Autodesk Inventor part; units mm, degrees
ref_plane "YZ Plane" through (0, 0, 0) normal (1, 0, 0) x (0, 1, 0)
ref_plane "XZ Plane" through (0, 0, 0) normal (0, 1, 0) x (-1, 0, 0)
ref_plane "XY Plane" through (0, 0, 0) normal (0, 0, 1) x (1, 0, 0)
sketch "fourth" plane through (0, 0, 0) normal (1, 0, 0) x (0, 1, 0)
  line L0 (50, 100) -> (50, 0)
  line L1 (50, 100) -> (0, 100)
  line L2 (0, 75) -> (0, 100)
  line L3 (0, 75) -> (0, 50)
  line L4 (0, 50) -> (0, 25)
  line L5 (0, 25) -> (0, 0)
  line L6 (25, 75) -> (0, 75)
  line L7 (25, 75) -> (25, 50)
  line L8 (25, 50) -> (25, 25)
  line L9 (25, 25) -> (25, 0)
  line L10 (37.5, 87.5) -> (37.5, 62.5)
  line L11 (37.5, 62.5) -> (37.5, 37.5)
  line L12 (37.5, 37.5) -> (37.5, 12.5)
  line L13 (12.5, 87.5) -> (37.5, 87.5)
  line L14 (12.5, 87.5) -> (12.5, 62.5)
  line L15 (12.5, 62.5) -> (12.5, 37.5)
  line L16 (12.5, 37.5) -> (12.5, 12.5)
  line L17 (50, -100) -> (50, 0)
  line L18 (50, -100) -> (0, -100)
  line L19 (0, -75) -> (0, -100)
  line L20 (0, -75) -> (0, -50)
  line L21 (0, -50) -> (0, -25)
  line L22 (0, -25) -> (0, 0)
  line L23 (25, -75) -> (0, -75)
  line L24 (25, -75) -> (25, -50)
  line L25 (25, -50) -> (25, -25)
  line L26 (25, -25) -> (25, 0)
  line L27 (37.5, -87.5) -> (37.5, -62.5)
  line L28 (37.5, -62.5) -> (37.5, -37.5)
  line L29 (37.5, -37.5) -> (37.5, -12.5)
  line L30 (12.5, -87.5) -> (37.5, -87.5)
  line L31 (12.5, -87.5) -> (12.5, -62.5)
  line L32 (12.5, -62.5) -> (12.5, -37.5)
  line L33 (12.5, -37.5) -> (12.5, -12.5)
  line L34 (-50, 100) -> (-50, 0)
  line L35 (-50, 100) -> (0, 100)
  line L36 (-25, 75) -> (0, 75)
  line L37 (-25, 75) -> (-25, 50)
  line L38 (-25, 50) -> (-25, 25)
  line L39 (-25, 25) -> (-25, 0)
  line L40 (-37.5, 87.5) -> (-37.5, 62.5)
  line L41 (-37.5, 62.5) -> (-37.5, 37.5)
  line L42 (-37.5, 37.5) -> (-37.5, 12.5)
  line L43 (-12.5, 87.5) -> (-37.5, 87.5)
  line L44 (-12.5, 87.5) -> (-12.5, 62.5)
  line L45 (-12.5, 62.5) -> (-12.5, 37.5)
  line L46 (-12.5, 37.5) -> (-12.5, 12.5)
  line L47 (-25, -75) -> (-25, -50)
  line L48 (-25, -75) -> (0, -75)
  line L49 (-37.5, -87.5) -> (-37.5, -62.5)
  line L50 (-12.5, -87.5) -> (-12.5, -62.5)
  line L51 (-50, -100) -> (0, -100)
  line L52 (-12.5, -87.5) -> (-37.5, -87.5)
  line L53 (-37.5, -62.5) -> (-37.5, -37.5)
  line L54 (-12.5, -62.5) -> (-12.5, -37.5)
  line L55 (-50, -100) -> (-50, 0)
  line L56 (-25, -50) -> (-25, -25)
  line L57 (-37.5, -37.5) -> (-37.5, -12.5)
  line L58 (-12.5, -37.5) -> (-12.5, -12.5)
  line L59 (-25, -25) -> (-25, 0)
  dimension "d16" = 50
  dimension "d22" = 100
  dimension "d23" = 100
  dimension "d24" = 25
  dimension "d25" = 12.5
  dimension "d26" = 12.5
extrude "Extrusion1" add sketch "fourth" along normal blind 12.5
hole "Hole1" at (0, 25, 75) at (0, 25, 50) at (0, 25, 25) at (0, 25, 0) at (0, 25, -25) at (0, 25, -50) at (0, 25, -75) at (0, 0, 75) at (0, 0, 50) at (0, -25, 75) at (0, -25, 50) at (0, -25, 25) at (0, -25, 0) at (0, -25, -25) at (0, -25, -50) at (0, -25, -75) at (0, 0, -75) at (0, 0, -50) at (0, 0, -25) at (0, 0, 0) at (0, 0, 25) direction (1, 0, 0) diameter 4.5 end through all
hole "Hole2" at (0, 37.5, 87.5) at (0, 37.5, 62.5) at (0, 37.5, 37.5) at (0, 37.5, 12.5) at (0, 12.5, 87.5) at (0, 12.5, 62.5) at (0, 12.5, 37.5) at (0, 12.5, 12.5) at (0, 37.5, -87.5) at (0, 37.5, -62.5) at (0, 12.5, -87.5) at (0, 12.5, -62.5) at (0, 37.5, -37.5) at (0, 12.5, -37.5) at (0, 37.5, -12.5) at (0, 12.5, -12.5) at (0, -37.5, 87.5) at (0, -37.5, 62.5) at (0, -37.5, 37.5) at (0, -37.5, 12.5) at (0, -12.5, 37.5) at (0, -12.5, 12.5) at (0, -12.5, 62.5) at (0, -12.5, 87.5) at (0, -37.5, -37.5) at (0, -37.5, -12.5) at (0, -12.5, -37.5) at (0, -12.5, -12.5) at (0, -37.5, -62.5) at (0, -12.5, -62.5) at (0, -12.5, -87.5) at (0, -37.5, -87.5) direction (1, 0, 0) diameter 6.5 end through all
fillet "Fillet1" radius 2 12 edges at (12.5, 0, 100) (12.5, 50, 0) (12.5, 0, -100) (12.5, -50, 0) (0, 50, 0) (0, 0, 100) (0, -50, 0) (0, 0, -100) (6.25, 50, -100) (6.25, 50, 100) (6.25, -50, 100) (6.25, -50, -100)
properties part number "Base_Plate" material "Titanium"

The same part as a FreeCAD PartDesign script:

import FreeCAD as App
import Part
import Sketcher

V = App.Vector


def edges_at(feature, points):
    """Names of the edges that pass closest to the given points."""
    edges = feature.Shape.Edges
    near = lambda p: min(range(len(edges)), key=lambda i: edges[i].distToShape(Part.Vertex(*p))[0])
    return sorted({f"Edge{near(p) + 1}" for p in points})


def add_polygon(sketch, points):
    """Adds a closed chain of lines whose ends are joined by coincident constraints."""
    first, n = sketch.GeometryCount, len(points)
    for a, b in zip(points, points[1:] + points[:1]):
        sketch.addGeometry(Part.LineSegment(App.Vector(*a, 0), App.Vector(*b, 0)), False)
    for i in range(n):
        sketch.addConstraint(Sketcher.Constraint("Coincident", first + i, 2, first + (i + 1) % n, 1))

doc = App.newDocument("Part")
params = doc.addObject("Spreadsheet::Sheet", "Params")
for row, (alias, value) in enumerate([
    ("sketch1_width", "100 mm"),
    ("pad1_length", "12.5 mm"),
    ("sketch2_diameter", "4.5 mm"),
    ("hole_diameter", "4.5 mm"),
    ("sketch3_diameter", "6.5 mm"),
    ("hole2_diameter", "6.5 mm"),
    ("fillet_radius", "2 mm"),
], start=1):
    params.set(f"A{row}", alias)
    params.set(f"B{row}", "=" + value)
    params.setAlias(f"B{row}", alias)

body = doc.addObject("PartDesign::Body", "Body")

sketch1 = doc.addObject("Sketcher::SketchObject", "Sketch")
body.addObject(sketch1)
sketch1.AttachmentSupport = (doc.YZ_Plane, [""])
sketch1.MapMode = "FlatFace"
add_polygon(sketch1, [(50, 100), (-50, 100), (-50, -100), (50, -100)])
sketch1.addConstraint([
    Sketcher.Constraint("Horizontal", 0),
    Sketcher.Constraint("Vertical", 1),
    Sketcher.Constraint("Horizontal", 2),
    Sketcher.Constraint("Vertical", 3),
    Sketcher.Constraint("Symmetric", 0, 2, 2, 2, -1, 1),
    Sketcher.Constraint("DistanceX", 0, 2, 0, 1, 100.0),
    Sketcher.Constraint("DistanceY", -1, 1, 0, 2, 100.0),
])
sketch1.setExpression("Constraints[9]", "Params.sketch1_width")
pad1 = doc.addObject("PartDesign::Pad", "Pad")
body.addObject(pad1)
pad1.Profile = sketch1
pad1.setExpression("Length", "Params.pad1_length")

sketch2 = doc.addObject("Sketcher::SketchObject", "Sketch001")
body.addObject(sketch2)
sketch2.AttachmentSupport = (doc.YZ_Plane, [""])
sketch2.MapMode = "FlatFace"
sketch2.addGeometry([
    Part.Circle(V(25, 75, 0), V(0, 0, 1), 2.2),
    Part.Circle(V(25, 50, 0), V(0, 0, 1), 2.2),
    Part.Circle(V(25, 25, 0), V(0, 0, 1), 2.2),
    Part.Circle(V(25, 0, 0), V(0, 0, 1), 2.2),
    Part.Circle(V(25, -25, 0), V(0, 0, 1), 2.2),
    Part.Circle(V(25, -50, 0), V(0, 0, 1), 2.2),
    Part.Circle(V(25, -75, 0), V(0, 0, 1), 2.2),
    Part.Circle(V(0, 75, 0), V(0, 0, 1), 2.2),
    Part.Circle(V(0, 50, 0), V(0, 0, 1), 2.2),
    Part.Circle(V(-25, 75, 0), V(0, 0, 1), 2.2),
    Part.Circle(V(-25, 50, 0), V(0, 0, 1), 2.2),
    Part.Circle(V(-25, 25, 0), V(0, 0, 1), 2.2),
    Part.Circle(V(-25, 0, 0), V(0, 0, 1), 2.2),
    Part.Circle(V(-25, -25, 0), V(0, 0, 1), 2.2),
    Part.Circle(V(-25, -50, 0), V(0, 0, 1), 2.2),
    Part.Circle(V(-25, -75, 0), V(0, 0, 1), 2.2),
    Part.Circle(V(0, -75, 0), V(0, 0, 1), 2.2),
    Part.Circle(V(0, -50, 0), V(0, 0, 1), 2.2),
    Part.Circle(V(0, -25, 0), V(0, 0, 1), 2.2),
    Part.Circle(V(0, 0, 0), V(0, 0, 1), 2.2),
    Part.Circle(V(0, 25, 0), V(0, 0, 1), 2.2),
], False)
sketch2.addConstraint([
    Sketcher.Constraint("Coincident", 19, 3, -1, 1),
    Sketcher.Constraint("Equal", 0, 1),
    Sketcher.Constraint("Equal", 1, 2),
    Sketcher.Constraint("Equal", 2, 3),
    Sketcher.Constraint("Equal", 3, 4),
    Sketcher.Constraint("Equal", 4, 5),
    Sketcher.Constraint("Equal", 5, 6),
    Sketcher.Constraint("Equal", 6, 7),
    Sketcher.Constraint("Equal", 7, 8),
    Sketcher.Constraint("Equal", 8, 9),
    Sketcher.Constraint("Equal", 9, 10),
    Sketcher.Constraint("Equal", 10, 11),
    Sketcher.Constraint("Equal", 11, 12),
    Sketcher.Constraint("Equal", 12, 13),
    Sketcher.Constraint("Equal", 13, 14),
    Sketcher.Constraint("Equal", 14, 15),
    Sketcher.Constraint("Equal", 15, 16),
    Sketcher.Constraint("Equal", 16, 17),
    Sketcher.Constraint("Equal", 17, 18),
    Sketcher.Constraint("Equal", 18, 19),
    Sketcher.Constraint("Equal", 19, 20),
    Sketcher.Constraint("Symmetric", 6, 3, 9, 3, -1, 1),
    Sketcher.Constraint("Symmetric", 5, 3, 10, 3, -1, 1),
    Sketcher.Constraint("Symmetric", 4, 3, 11, 3, -1, 1),
    Sketcher.Constraint("Symmetric", 3, 3, 12, 3, -1, 1),
    Sketcher.Constraint("Symmetric", 2, 3, 13, 3, -1, 1),
    Sketcher.Constraint("Symmetric", 1, 3, 14, 3, -1, 1),
    Sketcher.Constraint("Symmetric", 0, 3, 15, 3, -1, 1),
    Sketcher.Constraint("Symmetric", 7, 3, 16, 3, -1, 1),
    Sketcher.Constraint("Symmetric", 8, 3, 17, 3, -1, 1),
    Sketcher.Constraint("Symmetric", 18, 3, 20, 3, -1, 1),
    Sketcher.Constraint("Symmetric", 0, 3, 9, 3, -2),
    Sketcher.Constraint("Symmetric", 1, 3, 10, 3, -2),
    Sketcher.Constraint("Symmetric", 2, 3, 11, 3, -2),
    Sketcher.Constraint("PointOnObject", 3, 3, -1),
    Sketcher.Constraint("PointOnObject", 7, 3, -2),
    Sketcher.Constraint("PointOnObject", 8, 3, -2),
    Sketcher.Constraint("PointOnObject", 18, 3, -2),
    Sketcher.Constraint("Horizontal", 0, 3, 7, 3),
    Sketcher.Constraint("Horizontal", 1, 3, 8, 3),
    Sketcher.Constraint("Horizontal", 13, 3, 18, 3),
    Sketcher.Constraint("Vertical", 0, 3, 1, 3),
    Sketcher.Constraint("Vertical", 1, 3, 2, 3),
    Sketcher.Constraint("Vertical", 2, 3, 3, 3),
    Sketcher.Constraint("Diameter", 0, 4.5),
    Sketcher.Constraint("DistanceX", -1, 1, 0, 3, 25.0),
    Sketcher.Constraint("DistanceY", -1, 1, 0, 3, 75.0),
    Sketcher.Constraint("DistanceY", -1, 1, 1, 3, 50.0),
    Sketcher.Constraint("DistanceY", -1, 1, 2, 3, 25.0),
])
sketch2.setExpression("Constraints[44]", "Params.sketch2_diameter")
doc.recompute()
hole = doc.addObject("PartDesign::Hole", "Hole")
body.addObject(hole)
hole.Profile = sketch2
hole.ThreadType = "None"
hole.setExpression("Diameter", "Params.hole_diameter")
hole.DepthType = "ThroughAll"
hole.Reversed = True

sketch3 = doc.addObject("Sketcher::SketchObject", "Sketch002")
body.addObject(sketch3)
sketch3.AttachmentSupport = (doc.YZ_Plane, [""])
sketch3.MapMode = "FlatFace"
sketch3.addGeometry([
    Part.Circle(V(37.5, 87.5, 0), V(0, 0, 1), 3.2),
    Part.Circle(V(37.5, 62.5, 0), V(0, 0, 1), 3.2),
    Part.Circle(V(37.5, 37.5, 0), V(0, 0, 1), 3.2),
    Part.Circle(V(37.5, 12.5, 0), V(0, 0, 1), 3.2),
    Part.Circle(V(12.5, 87.5, 0), V(0, 0, 1), 3.2),
    Part.Circle(V(12.5, 62.5, 0), V(0, 0, 1), 3.2),
    Part.Circle(V(12.5, 37.5, 0), V(0, 0, 1), 3.2),
    Part.Circle(V(12.5, 12.5, 0), V(0, 0, 1), 3.2),
    Part.Circle(V(37.5, -87.5, 0), V(0, 0, 1), 3.2),
    Part.Circle(V(37.5, -62.5, 0), V(0, 0, 1), 3.2),
    Part.Circle(V(12.5, -87.5, 0), V(0, 0, 1), 3.2),
    Part.Circle(V(12.5, -62.5, 0), V(0, 0, 1), 3.2),
    Part.Circle(V(37.5, -37.5, 0), V(0, 0, 1), 3.2),
    Part.Circle(V(12.5, -37.5, 0), V(0, 0, 1), 3.2),
    Part.Circle(V(37.5, -12.5, 0), V(0, 0, 1), 3.2),
    Part.Circle(V(12.5, -12.5, 0), V(0, 0, 1), 3.2),
    Part.Circle(V(-37.5, 87.5, 0), V(0, 0, 1), 3.2),
    Part.Circle(V(-37.5, 62.5, 0), V(0, 0, 1), 3.2),
    Part.Circle(V(-37.5, 37.5, 0), V(0, 0, 1), 3.2),
    Part.Circle(V(-37.5, 12.5, 0), V(0, 0, 1), 3.2),
    Part.Circle(V(-12.5, 37.5, 0), V(0, 0, 1), 3.2),
    Part.Circle(V(-12.5, 12.5, 0), V(0, 0, 1), 3.2),
    Part.Circle(V(-12.5, 62.5, 0), V(0, 0, 1), 3.2),
    Part.Circle(V(-12.5, 87.5, 0), V(0, 0, 1), 3.2),
    Part.Circle(V(-37.5, -37.5, 0), V(0, 0, 1), 3.2),
    Part.Circle(V(-37.5, -12.5, 0), V(0, 0, 1), 3.2),
    Part.Circle(V(-12.5, -37.5, 0), V(0, 0, 1), 3.2),
    Part.Circle(V(-12.5, -12.5, 0), V(0, 0, 1), 3.2),
    Part.Circle(V(-37.5, -62.5, 0), V(0, 0, 1), 3.2),
    Part.Circle(V(-12.5, -62.5, 0), V(0, 0, 1), 3.2),
    Part.Circle(V(-12.5, -87.5, 0), V(0, 0, 1), 3.2),
    Part.Circle(V(-37.5, -87.5, 0), V(0, 0, 1), 3.2),
], False)
sketch3.addConstraint([
    Sketcher.Constraint("Equal", 0, 1),
    Sketcher.Constraint("Equal", 1, 2),
    Sketcher.Constraint("Equal", 2, 3),
    Sketcher.Constraint("Equal", 3, 4),
    Sketcher.Constraint("Equal", 4, 5),
    Sketcher.Constraint("Equal", 5, 6),
    Sketcher.Constraint("Equal", 6, 7),
    Sketcher.Constraint("Equal", 7, 8),
    Sketcher.Constraint("Equal", 8, 9),
    Sketcher.Constraint("Equal", 9, 10),
    Sketcher.Constraint("Equal", 10, 11),
    Sketcher.Constraint("Equal", 11, 12),
    Sketcher.Constraint("Equal", 12, 13),
    Sketcher.Constraint("Equal", 13, 14),
    Sketcher.Constraint("Equal", 14, 15),
    Sketcher.Constraint("Equal", 15, 16),
    Sketcher.Constraint("Equal", 16, 17),
    Sketcher.Constraint("Equal", 17, 18),
    Sketcher.Constraint("Equal", 18, 19),
    Sketcher.Constraint("Equal", 19, 20),
    Sketcher.Constraint("Equal", 20, 21),
    Sketcher.Constraint("Equal", 21, 22),
    Sketcher.Constraint("Equal", 22, 23),
    Sketcher.Constraint("Equal", 23, 24),
    Sketcher.Constraint("Equal", 24, 25),
    Sketcher.Constraint("Equal", 25, 26),
    Sketcher.Constraint("Equal", 26, 27),
    Sketcher.Constraint("Equal", 27, 28),
    Sketcher.Constraint("Equal", 28, 29),
    Sketcher.Constraint("Equal", 29, 30),
    Sketcher.Constraint("Equal", 30, 31),
    Sketcher.Constraint("Symmetric", 8, 3, 16, 3, -1, 1),
    Sketcher.Constraint("Symmetric", 9, 3, 17, 3, -1, 1),
    Sketcher.Constraint("Symmetric", 12, 3, 18, 3, -1, 1),
    Sketcher.Constraint("Symmetric", 14, 3, 19, 3, -1, 1),
    Sketcher.Constraint("Symmetric", 13, 3, 20, 3, -1, 1),
    Sketcher.Constraint("Symmetric", 15, 3, 21, 3, -1, 1),
    Sketcher.Constraint("Symmetric", 11, 3, 22, 3, -1, 1),
    Sketcher.Constraint("Symmetric", 10, 3, 23, 3, -1, 1),
    Sketcher.Constraint("Symmetric", 2, 3, 24, 3, -1, 1),
    Sketcher.Constraint("Symmetric", 3, 3, 25, 3, -1, 1),
    Sketcher.Constraint("Symmetric", 6, 3, 26, 3, -1, 1),
    Sketcher.Constraint("Symmetric", 7, 3, 27, 3, -1, 1),
    Sketcher.Constraint("Symmetric", 1, 3, 28, 3, -1, 1),
    Sketcher.Constraint("Symmetric", 5, 3, 29, 3, -1, 1),
    Sketcher.Constraint("Symmetric", 4, 3, 30, 3, -1, 1),
    Sketcher.Constraint("Symmetric", 0, 3, 31, 3, -1, 1),
    Sketcher.Constraint("Symmetric", 0, 3, 16, 3, -2),
    Sketcher.Constraint("Symmetric", 1, 3, 17, 3, -2),
    Sketcher.Constraint("Symmetric", 2, 3, 18, 3, -2),
    Sketcher.Constraint("Symmetric", 3, 3, 19, 3, -2),
    Sketcher.Constraint("Symmetric", 6, 3, 20, 3, -2),
    Sketcher.Constraint("Symmetric", 7, 3, 21, 3, -2),
    Sketcher.Constraint("Symmetric", 5, 3, 22, 3, -2),
    Sketcher.Constraint("Symmetric", 4, 3, 23, 3, -2),
    Sketcher.Constraint("Horizontal", 0, 3, 4, 3),
    Sketcher.Constraint("Horizontal", 1, 3, 5, 3),
    Sketcher.Constraint("Horizontal", 2, 3, 6, 3),
    Sketcher.Constraint("Horizontal", 3, 3, 7, 3),
    Sketcher.Constraint("Vertical", 0, 3, 1, 3),
    Sketcher.Constraint("Vertical", 1, 3, 2, 3),
    Sketcher.Constraint("Vertical", 2, 3, 3, 3),
    Sketcher.Constraint("Vertical", 4, 3, 5, 3),
    Sketcher.Constraint("Vertical", 5, 3, 6, 3),
    Sketcher.Constraint("Vertical", 6, 3, 7, 3),
    Sketcher.Constraint("Diameter", 0, 6.5),
    Sketcher.Constraint("DistanceY", 1, 3, 0, 3, 25.0),
    Sketcher.Constraint("DistanceY", 2, 3, 1, 3, 25.0),
    Sketcher.Constraint("DistanceY", 3, 3, 2, 3, 25.0),
    Sketcher.Constraint("DistanceX", 4, 3, 0, 3, 25.0),
    Sketcher.Constraint("DistanceY", 8, 3, 3, 3, 100.0),
    Sketcher.Constraint("DistanceX", 16, 3, 4, 3, 50.0),
])
sketch3.setExpression("Constraints[65]", "Params.sketch3_diameter")
doc.recompute()
hole2 = doc.addObject("PartDesign::Hole", "Hole001")
body.addObject(hole2)
hole2.Profile = sketch3
hole2.ThreadType = "None"
hole2.setExpression("Diameter", "Params.hole2_diameter")
hole2.DepthType = "ThroughAll"
hole2.Reversed = True
doc.recompute()

fillet = doc.addObject("PartDesign::Fillet", "Fillet")
body.addObject(fillet)
fillet.Base = (hole2, edges_at(hole2, [
    (12.5, 0, 100),
    (12.5, 50, 0),
    (12.5, 0, -100),
    (12.5, -50, 0),
    (0, 50, 0),
    (0, 0, 100),
    (0, -50, 0),
    (0, 0, -100),
    (6.25, 50, -100),
    (6.25, 50, 100),
    (6.25, -50, 100),
    (6.25, -50, -100),
]))
fillet.setExpression("Radius", "Params.fillet_radius")

doc.recompute()
